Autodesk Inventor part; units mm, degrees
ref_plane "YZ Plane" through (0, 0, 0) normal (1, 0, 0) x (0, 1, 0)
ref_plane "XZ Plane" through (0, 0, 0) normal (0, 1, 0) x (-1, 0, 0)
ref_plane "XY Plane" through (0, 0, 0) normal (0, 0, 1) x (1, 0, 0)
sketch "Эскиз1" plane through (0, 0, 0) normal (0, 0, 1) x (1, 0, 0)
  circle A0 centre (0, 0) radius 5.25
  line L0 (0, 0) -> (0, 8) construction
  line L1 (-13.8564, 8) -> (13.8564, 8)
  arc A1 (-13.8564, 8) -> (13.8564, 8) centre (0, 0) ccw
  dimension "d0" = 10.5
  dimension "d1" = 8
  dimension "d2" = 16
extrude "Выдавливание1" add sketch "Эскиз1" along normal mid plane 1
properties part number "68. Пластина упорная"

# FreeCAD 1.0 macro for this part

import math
import FreeCAD as App
import Part
import Sketcher
Q = App.Units.Quantity

doc = App.newDocument("Part")
params = doc.addObject("Spreadsheet::Sheet", "Params")
for row, (alias, value) in enumerate([
    ("sketch1_radius", "16 mm"),
    ("sketch1_diameter", "10.5 mm"),
    ("pad1_length", "1 mm"),
], start=1):
    params.set(f"A{row}", alias)
    params.set(f"B{row}", "=" + value)
    params.setAlias(f"B{row}", alias)

body = doc.addObject("PartDesign::Body", "Body")

sketch1 = doc.addObject("Sketcher::SketchObject", "Sketch")
body.addObject(sketch1)
sketch1.AttachmentSupport = (doc.XY_Plane, [""])
sketch1.MapMode = "FlatFace"
sketch1.addGeometry(Part.LineSegment(App.Vector(14, 8, 0), App.Vector(-14, 8, 0)), False)
sketch1.addGeometry(Part.ArcOfCircle(Part.Circle(App.Vector(0, 0, 0), App.Vector(0, 0, 1), 16), math.radians(150), math.radians(390)), False)
sketch1.addGeometry(Part.Circle(App.Vector(0, 0, 0), App.Vector(0, 0, 1), 5), False)
sketch1.addConstraint(Sketcher.Constraint("Coincident", 0, 1, 1, 2))
sketch1.addConstraint(Sketcher.Constraint("Coincident", 1, 1, 0, 2))
sketch1.addConstraint(Sketcher.Constraint("Horizontal", 0))
sketch1.addConstraint(Sketcher.Constraint("Coincident", 1, 3, -1, 1))
sketch1.addConstraint(Sketcher.Constraint("Coincident", 2, 3, -1, 1))
sketch1.addConstraint(Sketcher.Constraint("Radius", 1, Q("16 mm")))
sketch1.addConstraint(Sketcher.Constraint("Diameter", 2, Q("10.5 mm")))
sketch1.addConstraint(Sketcher.Constraint("DistanceY", -1, 1, 0, 1, Q("8 mm")))
sketch1.setExpression("Constraints[5]", "Params.sketch1_radius")
sketch1.setExpression("Constraints[6]", "Params.sketch1_diameter")
pad1 = doc.addObject("PartDesign::Pad", "Pad")
body.addObject(pad1)
pad1.Profile = sketch1
pad1.setExpression("Length", "Params.pad1_length")
pad1.Midplane = True

doc.recompute()
